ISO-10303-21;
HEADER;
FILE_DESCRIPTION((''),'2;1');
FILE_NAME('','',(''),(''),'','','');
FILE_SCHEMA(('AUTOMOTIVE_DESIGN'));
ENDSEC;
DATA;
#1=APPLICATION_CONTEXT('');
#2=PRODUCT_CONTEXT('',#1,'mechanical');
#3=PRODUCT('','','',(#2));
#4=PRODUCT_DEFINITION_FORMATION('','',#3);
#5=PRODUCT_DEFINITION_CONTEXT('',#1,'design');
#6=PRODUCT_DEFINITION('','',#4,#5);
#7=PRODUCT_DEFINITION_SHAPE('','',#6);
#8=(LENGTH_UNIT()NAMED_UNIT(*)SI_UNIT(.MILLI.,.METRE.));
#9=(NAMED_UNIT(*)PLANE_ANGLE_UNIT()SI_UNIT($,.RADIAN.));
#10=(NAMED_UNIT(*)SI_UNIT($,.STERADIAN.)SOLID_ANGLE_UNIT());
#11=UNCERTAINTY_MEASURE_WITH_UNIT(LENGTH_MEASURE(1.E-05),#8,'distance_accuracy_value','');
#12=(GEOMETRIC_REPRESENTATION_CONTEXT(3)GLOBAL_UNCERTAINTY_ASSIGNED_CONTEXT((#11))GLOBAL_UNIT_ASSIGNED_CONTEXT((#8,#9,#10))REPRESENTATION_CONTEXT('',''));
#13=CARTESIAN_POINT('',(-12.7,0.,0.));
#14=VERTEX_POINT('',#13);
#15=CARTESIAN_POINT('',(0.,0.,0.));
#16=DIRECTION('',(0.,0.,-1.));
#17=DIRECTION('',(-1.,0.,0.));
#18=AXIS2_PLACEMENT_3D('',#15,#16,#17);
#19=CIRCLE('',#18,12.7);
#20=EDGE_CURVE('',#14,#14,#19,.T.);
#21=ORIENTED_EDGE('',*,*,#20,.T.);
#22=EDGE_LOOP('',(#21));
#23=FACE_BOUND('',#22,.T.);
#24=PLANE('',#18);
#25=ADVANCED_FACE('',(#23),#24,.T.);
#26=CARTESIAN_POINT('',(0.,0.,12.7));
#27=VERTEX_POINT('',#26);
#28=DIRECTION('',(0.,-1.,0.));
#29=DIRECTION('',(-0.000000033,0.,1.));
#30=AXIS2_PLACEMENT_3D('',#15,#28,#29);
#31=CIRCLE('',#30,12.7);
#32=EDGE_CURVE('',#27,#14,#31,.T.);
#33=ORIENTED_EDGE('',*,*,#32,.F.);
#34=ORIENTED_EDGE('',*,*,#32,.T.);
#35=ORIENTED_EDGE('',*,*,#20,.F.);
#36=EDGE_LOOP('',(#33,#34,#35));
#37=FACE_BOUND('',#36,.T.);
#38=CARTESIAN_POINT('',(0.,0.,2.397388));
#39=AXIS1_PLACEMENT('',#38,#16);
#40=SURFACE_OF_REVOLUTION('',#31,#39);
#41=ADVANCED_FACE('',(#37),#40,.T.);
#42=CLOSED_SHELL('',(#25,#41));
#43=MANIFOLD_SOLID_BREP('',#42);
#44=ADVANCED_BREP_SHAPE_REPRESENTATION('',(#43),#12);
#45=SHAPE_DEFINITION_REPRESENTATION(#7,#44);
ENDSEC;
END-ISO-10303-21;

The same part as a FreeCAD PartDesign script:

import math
import FreeCAD as App
import Part
import Sketcher

V = App.Vector
Q = App.Units.Quantity

doc = App.newDocument("Part")
body = doc.addObject("PartDesign::Body", "Body")

# Sketch on XZ plane
sketch1 = doc.addObject("Sketcher::SketchObject", "Sketch")
body.addObject(sketch1)
sketch1.AttachmentSupport = (doc.XZ_Plane, [""])
sketch1.MapMode = "FlatFace"
sketch1.addGeometry(Part.ArcOfCircle(Part.Circle(V(0, 0, 0), V(0, 0, 1), 13), math.radians(90), math.radians(180)), False)
sketch1.addGeometry(Part.LineSegment(V(-13, 0, 0), V(0, 0, 0)), False)
sketch1.addGeometry(Part.LineSegment(V(0, 0, 0), V(0, 13, 0)), False)
sketch1.addConstraint(Sketcher.Constraint("Coincident", 0, 2, 1, 1))
sketch1.addConstraint(Sketcher.Constraint("Coincident", 1, 2, 2, 1))
sketch1.addConstraint(Sketcher.Constraint("Coincident", 2, 2, 0, 1))
sketch1.addConstraint(Sketcher.Constraint("Horizontal", 1))
sketch1.addConstraint(Sketcher.Constraint("Vertical", 2))
sketch1.addConstraint(Sketcher.Constraint("Coincident", 0, 3, -1, 1))
sketch1.addConstraint(Sketcher.Constraint("Coincident", 1, 2, -1, 1))
sketch1.addConstraint(Sketcher.Constraint("Radius", 0, Q("0.5 in")))
revolution = doc.addObject("PartDesign::Revolution", "Revolution")
body.addObject(revolution)
revolution.Profile = sketch1
revolution.ReferenceAxis = (sketch1, ["V_Axis"])
revolution.Angle = 360

doc.recompute()
